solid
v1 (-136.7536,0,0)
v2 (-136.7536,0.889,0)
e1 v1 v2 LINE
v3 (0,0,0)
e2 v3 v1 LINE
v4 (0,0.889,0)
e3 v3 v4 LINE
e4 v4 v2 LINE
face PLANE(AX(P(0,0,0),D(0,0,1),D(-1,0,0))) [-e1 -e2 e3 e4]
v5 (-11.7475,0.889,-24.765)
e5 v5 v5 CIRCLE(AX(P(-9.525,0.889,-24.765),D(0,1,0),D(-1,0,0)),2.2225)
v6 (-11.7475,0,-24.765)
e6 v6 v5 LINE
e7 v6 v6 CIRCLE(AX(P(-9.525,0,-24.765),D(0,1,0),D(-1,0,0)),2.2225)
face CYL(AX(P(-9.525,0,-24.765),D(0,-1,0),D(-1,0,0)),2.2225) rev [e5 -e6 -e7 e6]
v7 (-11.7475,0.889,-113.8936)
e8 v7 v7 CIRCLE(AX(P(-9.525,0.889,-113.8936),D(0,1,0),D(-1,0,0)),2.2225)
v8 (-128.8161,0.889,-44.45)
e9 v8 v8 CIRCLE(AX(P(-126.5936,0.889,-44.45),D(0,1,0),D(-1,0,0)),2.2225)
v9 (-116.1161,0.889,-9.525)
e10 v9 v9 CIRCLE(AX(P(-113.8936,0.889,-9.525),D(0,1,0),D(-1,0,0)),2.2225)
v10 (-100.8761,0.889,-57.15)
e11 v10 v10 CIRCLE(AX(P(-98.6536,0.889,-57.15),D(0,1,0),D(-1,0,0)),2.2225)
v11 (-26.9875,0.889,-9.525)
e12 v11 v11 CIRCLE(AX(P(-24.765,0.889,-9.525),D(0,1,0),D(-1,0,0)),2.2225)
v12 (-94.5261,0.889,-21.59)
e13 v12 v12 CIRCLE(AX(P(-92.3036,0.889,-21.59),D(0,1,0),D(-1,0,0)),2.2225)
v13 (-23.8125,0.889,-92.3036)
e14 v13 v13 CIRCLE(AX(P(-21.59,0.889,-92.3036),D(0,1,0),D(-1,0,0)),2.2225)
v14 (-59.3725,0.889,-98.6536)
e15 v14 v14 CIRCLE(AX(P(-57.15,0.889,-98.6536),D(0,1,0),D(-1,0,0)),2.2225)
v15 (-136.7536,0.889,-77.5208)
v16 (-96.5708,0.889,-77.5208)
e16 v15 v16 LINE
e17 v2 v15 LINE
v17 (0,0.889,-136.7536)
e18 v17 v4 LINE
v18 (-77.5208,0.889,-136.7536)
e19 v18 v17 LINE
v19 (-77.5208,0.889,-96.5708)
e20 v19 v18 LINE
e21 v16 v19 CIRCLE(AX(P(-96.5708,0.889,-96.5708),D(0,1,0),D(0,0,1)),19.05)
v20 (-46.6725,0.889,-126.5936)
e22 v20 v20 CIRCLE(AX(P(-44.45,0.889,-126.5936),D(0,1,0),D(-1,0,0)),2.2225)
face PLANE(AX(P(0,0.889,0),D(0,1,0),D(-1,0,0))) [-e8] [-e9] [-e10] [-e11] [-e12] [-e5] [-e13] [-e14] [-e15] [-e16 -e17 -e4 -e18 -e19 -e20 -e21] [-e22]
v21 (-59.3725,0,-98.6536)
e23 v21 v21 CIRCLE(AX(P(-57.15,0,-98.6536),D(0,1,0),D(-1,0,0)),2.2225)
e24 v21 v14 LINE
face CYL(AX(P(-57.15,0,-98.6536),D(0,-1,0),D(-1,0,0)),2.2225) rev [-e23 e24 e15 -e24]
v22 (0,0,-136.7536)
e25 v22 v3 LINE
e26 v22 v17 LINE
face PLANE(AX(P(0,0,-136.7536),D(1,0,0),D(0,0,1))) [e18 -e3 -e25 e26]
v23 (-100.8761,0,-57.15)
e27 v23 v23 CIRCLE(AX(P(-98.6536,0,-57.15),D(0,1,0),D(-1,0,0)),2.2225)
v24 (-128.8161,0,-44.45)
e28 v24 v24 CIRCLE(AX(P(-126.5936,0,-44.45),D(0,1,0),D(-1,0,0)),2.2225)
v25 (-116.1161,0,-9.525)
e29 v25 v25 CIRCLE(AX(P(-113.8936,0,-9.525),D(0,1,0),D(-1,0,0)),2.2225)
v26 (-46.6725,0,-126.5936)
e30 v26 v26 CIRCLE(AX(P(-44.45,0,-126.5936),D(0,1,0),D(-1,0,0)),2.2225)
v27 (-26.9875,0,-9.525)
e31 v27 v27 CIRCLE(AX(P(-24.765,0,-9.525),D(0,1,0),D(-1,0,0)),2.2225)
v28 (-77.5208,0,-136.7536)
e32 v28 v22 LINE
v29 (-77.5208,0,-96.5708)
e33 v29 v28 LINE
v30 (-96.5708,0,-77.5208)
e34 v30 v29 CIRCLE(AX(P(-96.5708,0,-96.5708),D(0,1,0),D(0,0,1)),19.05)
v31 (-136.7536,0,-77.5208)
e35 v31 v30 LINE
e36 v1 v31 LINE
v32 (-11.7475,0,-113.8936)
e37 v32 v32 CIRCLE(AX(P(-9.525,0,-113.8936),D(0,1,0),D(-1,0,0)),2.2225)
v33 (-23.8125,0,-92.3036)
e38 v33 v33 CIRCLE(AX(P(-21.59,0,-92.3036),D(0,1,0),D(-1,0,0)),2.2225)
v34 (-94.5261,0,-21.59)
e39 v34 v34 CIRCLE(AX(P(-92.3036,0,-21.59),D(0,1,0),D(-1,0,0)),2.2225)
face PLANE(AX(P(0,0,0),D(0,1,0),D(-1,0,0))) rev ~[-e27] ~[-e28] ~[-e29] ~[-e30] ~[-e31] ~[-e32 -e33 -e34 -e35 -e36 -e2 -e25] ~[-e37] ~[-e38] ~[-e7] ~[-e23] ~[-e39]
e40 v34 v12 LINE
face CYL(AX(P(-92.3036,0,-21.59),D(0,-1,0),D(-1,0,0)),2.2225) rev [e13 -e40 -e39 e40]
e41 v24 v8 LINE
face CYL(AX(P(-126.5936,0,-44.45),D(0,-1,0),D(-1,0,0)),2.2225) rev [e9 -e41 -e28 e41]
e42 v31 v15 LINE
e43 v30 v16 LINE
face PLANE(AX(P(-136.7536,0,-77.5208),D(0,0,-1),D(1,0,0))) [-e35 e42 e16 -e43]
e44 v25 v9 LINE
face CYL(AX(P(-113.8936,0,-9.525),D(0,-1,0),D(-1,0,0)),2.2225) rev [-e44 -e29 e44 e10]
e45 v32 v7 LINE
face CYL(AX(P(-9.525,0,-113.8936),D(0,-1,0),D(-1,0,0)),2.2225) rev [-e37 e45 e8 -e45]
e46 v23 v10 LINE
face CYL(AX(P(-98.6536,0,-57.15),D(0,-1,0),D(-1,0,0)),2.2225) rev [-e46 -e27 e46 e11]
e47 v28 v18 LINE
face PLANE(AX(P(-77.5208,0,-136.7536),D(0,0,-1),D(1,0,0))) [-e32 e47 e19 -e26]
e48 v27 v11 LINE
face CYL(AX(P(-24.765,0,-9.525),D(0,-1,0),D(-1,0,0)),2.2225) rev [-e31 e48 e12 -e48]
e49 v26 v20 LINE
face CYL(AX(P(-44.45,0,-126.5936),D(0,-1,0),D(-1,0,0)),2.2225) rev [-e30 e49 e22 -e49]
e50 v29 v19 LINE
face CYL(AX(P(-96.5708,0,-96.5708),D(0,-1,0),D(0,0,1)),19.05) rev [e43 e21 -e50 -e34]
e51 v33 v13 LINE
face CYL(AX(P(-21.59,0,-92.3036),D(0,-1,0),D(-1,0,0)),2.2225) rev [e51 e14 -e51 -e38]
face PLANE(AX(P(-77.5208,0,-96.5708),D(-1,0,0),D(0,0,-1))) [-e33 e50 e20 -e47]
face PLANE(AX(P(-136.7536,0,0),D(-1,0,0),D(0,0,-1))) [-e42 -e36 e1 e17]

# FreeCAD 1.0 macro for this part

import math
import FreeCAD as App
import Part
import Sketcher

V = App.Vector
Q = App.Units.Quantity

doc = App.newDocument("Part")
body = doc.addObject("PartDesign::Body", "Body")

# Sketch on XZ plane
sketch1 = body.newObject("Sketcher::SketchObject", "Sketch")
sketch1.AttachmentSupport = (doc.getObject("XZ_Plane"), [""])
sketch1.MapMode = "FlatFace"
sketch1.addGeometry(Part.LineSegment(V(-136.8, 0, 0), V(0, 0, 0)), False)
sketch1.addGeometry(Part.LineSegment(V(0, 0, 0), V(0, -136.8, 0)), False)
sketch1.addGeometry(Part.LineSegment(V(0, -136.8, 0), V(-77.5, -136.8, 0)), False)
sketch1.addGeometry(Part.LineSegment(V(-77.5, -136.8, 0), V(-77.5, -96.6, 0)), False)
sketch1.addGeometry(Part.ArcOfCircle(Part.Circle(V(-96.6, -96.6, 0), V(0, 0, 1), 19.1), math.radians(0), math.radians(90)), False)
sketch1.addGeometry(Part.LineSegment(V(-96.6, -77.5, 0), V(-136.8, -77.5, 0)), False)
sketch1.addGeometry(Part.LineSegment(V(-136.8, -77.5, 0), V(-136.8, 0, 0)), False)
sketch1.addGeometry(Part.Circle(V(-9.5, -113.9, 0), V(0, 0, 1), 2.2), False)
sketch1.addGeometry(Part.Circle(V(-44.5, -126.6, 0), V(0, 0, 1), 2.2), False)
sketch1.addGeometry(Part.Circle(V(-21.6, -92.3, 0), V(0, 0, 1), 2.2), False)
sketch1.addGeometry(Part.Circle(V(-57.1, -98.7, 0), V(0, 0, 1), 2.2), False)
sketch1.addGeometry(Part.Circle(V(-9.5, -24.8, 0), V(0, 0, 1), 2.2), False)
sketch1.addGeometry(Part.Circle(V(-24.8, -9.5, 0), V(0, 0, 1), 2.2), False)
sketch1.addGeometry(Part.Circle(V(-98.7, -57.1, 0), V(0, 0, 1), 2.2), False)
sketch1.addGeometry(Part.Circle(V(-126.6, -44.5, 0), V(0, 0, 1), 2.2), False)
sketch1.addGeometry(Part.Circle(V(-92.3, -21.6, 0), V(0, 0, 1), 2.2), False)
sketch1.addGeometry(Part.Circle(V(-113.9, -9.5, 0), V(0, 0, 1), 2.2), False)
sketch1.addConstraint(Sketcher.Constraint("Coincident", 0, 2, 1, 1))
sketch1.addConstraint(Sketcher.Constraint("Coincident", 1, 2, 2, 1))
sketch1.addConstraint(Sketcher.Constraint("Coincident", 2, 2, 3, 1))
sketch1.addConstraint(Sketcher.Constraint("Tangent", 3, 2, 4, 1))
sketch1.addConstraint(Sketcher.Constraint("Tangent", 4, 2, 5, 1))
sketch1.addConstraint(Sketcher.Constraint("Coincident", 5, 2, 6, 1))
sketch1.addConstraint(Sketcher.Constraint("Coincident", 6, 2, 0, 1))
sketch1.addConstraint(Sketcher.Constraint("Horizontal", 0))
sketch1.addConstraint(Sketcher.Constraint("Vertical", 1))
sketch1.addConstraint(Sketcher.Constraint("Horizontal", 2))
sketch1.addConstraint(Sketcher.Constraint("Vertical", 3))
sketch1.addConstraint(Sketcher.Constraint("Horizontal", 5))
sketch1.addConstraint(Sketcher.Constraint("Vertical", 6))
sketch1.addConstraint(Sketcher.Constraint("Coincident", 0, 2, -1, 1))
sketch1.addConstraint(Sketcher.Constraint("Equal", 7, 8))
sketch1.addConstraint(Sketcher.Constraint("Equal", 8, 9))
sketch1.addConstraint(Sketcher.Constraint("Equal", 9, 10))
sketch1.addConstraint(Sketcher.Constraint("Equal", 10, 11))
sketch1.addConstraint(Sketcher.Constraint("Equal", 11, 12))
sketch1.addConstraint(Sketcher.Constraint("Equal", 12, 13))
sketch1.addConstraint(Sketcher.Constraint("Equal", 13, 14))
sketch1.addConstraint(Sketcher.Constraint("Equal", 14, 15))
sketch1.addConstraint(Sketcher.Constraint("Equal", 15, 16))
sketch1.addConstraint(Sketcher.Constraint("Horizontal", 12, 3, 16, 3))
sketch1.addConstraint(Sketcher.Constraint("Vertical", 7, 3, 11, 3))
sketch1.addConstraint(Sketcher.Constraint("Equal", 0, 1))
sketch1.addConstraint(Sketcher.Constraint("Equal", 5, 3))
sketch1.addConstraint(Sketcher.Constraint("Radius", 4, Q("0.75 in")))
sketch1.addConstraint(Sketcher.Constraint("Diameter", 7, Q("0.175 in")))
sketch1.addConstraint(Sketcher.Constraint("DistanceX", 8, 3, 9, 3, Q("0.9 in")))
sketch1.addConstraint(Sketcher.Constraint("DistanceY", 14, 3, 15, 3, Q("0.9 in")))
sketch1.addConstraint(Sketcher.Constraint("DistanceY", 1, 2, 7, 3, Q("0.9 in")))
sketch1.addConstraint(Sketcher.Constraint("DistanceY", 1, 2, 8, 3, Q("0.4 in")))
sketch1.addConstraint(Sketcher.Constraint("DistanceY", 1, 2, 10, 3, Q("1.5 in")))
sketch1.addConstraint(Sketcher.Constraint("DistanceX", 5, 2, 14, 3, Q("0.4 in")))
sketch1.addConstraint(Sketcher.Constraint("DistanceX", 5, 2, 13, 3, Q("1.5 in")))
sketch1.addConstraint(Sketcher.Constraint("DistanceX", 6, 2, 16, 3, Q("0.9 in")))
sketch1.addConstraint(Sketcher.Constraint("DistanceX", 0, 1, 0, 2, Q("5.384 in")))
sketch1.addConstraint(Sketcher.Constraint("DistanceX", 2, 2, 2, 1, Q("3.052 in")))
sketch1.addConstraint(Sketcher.Constraint("DistanceX", 8, 3, -1, 1, Q("1.75 in")))
sketch1.addConstraint(Sketcher.Constraint("DistanceX", 10, 3, -1, 1, Q("2.25 in")))
sketch1.addConstraint(Sketcher.Constraint("DistanceY", 13, 3, -1, 1, Q("2.25 in")))
sketch1.addConstraint(Sketcher.Constraint("DistanceY", 14, 3, -1, 1, Q("1.75 in")))
sketch1.addConstraint(Sketcher.Constraint("DistanceY", 7, 3, 9, 3, Q("0.85 in")))
sketch1.addConstraint(Sketcher.Constraint("DistanceX", 16, 3, 15, 3, Q("0.85 in")))
sketch1.addConstraint(Sketcher.Constraint("DistanceX", 7, 3, -1, 1, Q("0.375 in")))
sketch1.addConstraint(Sketcher.Constraint("DistanceY", 11, 3, -1, 1, Q("0.975 in")))
sketch1.addConstraint(Sketcher.Constraint("DistanceX", 12, 3, -1, 1, Q("0.975 in")))
sketch1.addConstraint(Sketcher.Constraint("DistanceY", 12, 3, -1, 1, Q("0.375 in")))
pad1 = body.newObject("PartDesign::Pad", "Pad")
pad1.Profile = sketch1
pad1.Length = Q("0.035 in")
pad1.Reversed = True

doc.recompute()
